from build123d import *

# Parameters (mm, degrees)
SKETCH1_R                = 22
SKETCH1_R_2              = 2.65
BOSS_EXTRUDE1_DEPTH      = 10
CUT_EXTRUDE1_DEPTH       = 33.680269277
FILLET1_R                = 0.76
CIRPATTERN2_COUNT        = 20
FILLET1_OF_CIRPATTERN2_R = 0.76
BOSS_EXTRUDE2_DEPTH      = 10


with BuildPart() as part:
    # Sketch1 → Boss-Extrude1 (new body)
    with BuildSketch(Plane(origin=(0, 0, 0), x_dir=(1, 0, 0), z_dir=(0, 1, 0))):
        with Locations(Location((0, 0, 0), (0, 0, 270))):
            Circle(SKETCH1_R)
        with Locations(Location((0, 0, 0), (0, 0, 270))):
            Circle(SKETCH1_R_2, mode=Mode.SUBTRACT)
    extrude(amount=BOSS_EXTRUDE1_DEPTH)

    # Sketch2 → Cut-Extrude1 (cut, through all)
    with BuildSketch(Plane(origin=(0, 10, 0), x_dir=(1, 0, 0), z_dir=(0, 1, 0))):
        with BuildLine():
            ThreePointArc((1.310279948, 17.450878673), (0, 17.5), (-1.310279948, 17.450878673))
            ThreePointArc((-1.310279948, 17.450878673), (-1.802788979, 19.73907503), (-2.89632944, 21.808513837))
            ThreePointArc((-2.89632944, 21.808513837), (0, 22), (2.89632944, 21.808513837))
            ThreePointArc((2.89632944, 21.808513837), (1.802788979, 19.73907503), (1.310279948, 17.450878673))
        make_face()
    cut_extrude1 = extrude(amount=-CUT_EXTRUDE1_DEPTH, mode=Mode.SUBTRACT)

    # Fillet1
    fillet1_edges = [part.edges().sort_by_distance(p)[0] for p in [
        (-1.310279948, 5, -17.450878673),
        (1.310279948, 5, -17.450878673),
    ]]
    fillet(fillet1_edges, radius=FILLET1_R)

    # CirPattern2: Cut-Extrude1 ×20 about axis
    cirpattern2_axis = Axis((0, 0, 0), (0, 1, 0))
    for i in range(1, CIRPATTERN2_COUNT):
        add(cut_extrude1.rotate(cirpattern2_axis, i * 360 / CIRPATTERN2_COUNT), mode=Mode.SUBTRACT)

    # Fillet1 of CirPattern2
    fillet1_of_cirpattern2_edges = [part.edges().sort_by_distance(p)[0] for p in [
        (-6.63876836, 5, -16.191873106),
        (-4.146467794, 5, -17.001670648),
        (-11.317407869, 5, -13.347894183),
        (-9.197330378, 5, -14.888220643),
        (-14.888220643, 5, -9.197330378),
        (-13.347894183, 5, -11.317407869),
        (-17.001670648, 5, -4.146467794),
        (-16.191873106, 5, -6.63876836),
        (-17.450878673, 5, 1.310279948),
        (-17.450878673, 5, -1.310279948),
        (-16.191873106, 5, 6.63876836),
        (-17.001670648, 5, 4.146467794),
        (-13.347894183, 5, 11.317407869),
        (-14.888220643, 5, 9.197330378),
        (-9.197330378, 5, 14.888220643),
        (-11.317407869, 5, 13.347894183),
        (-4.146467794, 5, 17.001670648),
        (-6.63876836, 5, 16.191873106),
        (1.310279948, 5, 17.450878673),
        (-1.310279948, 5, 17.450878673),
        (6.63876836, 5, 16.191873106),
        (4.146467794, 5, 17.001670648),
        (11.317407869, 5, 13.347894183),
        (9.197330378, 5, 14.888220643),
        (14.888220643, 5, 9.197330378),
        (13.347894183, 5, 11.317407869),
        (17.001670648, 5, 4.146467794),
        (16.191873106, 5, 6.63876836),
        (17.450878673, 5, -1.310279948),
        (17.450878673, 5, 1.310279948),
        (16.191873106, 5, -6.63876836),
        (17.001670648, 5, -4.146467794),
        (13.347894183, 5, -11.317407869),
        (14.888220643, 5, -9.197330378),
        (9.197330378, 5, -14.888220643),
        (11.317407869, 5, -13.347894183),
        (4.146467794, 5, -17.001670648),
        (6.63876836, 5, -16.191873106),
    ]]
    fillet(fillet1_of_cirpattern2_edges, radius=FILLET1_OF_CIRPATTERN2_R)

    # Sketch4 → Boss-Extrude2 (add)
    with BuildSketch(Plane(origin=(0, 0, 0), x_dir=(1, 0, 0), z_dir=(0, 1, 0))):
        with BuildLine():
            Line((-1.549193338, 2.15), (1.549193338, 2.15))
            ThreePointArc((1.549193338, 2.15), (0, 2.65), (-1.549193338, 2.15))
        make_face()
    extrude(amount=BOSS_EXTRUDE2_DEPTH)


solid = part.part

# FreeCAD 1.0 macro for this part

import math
import FreeCAD as App
import Part
import Sketcher
Q = App.Units.Quantity


def edges_at(feature, points):
    """Names of the edges that pass closest to the given points."""
    edges = feature.Shape.Edges
    near = lambda p: min(range(len(edges)), key=lambda i: edges[i].distToShape(Part.Vertex(*p))[0])
    return sorted({f"Edge{near(p) + 1}" for p in points})

doc = App.newDocument("Part")
body = doc.addObject("PartDesign::Body", "Body")

# Sketch on XZ plane
sketch1 = doc.addObject("Sketcher::SketchObject", "Sketch")
body.addObject(sketch1)
sketch1.AttachmentSupport = (doc.XZ_Plane, [""])
sketch1.MapMode = "FlatFace"
sketch1.addGeometry([
    Part.Circle(App.Vector(0, 0, 0), App.Vector(0, 0, 1), 22),
    Part.Circle(App.Vector(0, 0, 0), App.Vector(0, 0, 1), 2.65),
], False)
sketch1.addConstraint([
    Sketcher.Constraint("Coincident", 0, 3, -1, 1),
    Sketcher.Constraint("Coincident", 1, 3, -1, 1),
    Sketcher.Constraint("Diameter", 0, Q("44 mm")),
    Sketcher.Constraint("Diameter", 1, Q("5.3 mm")),
])
pad1 = doc.addObject("PartDesign::Pad", "Pad")
body.addObject(pad1)
pad1.Profile = sketch1
pad1.Length = 10
pad1.Reversed = True

# Sketch on XZ plane
sketch2 = doc.addObject("Sketcher::SketchObject", "Sketch001")
body.addObject(sketch2)
sketch2.AttachmentSupport = (doc.XZ_Plane, [""])
sketch2.MapMode = "FlatFace"
sketch2.AttachmentOffset = App.Placement(App.Vector(0, 0, -10), App.Rotation())
sketch2.addGeometry([
    Part.ArcOfCircle(Part.Circle(App.Vector(0, 0, 0), App.Vector(0, 0, 1), 17.5), math.radians(-94.293933), math.radians(-85.706067)),
    Part.ArcOfCircle(Part.Circle(App.Vector(9.851546, -16.809567, 0), App.Vector(0, 0, 1), 8.565308), math.radians(-175.706067), math.radians(-144.293933)),
    Part.ArcOfCircle(Part.Circle(App.Vector(0, 0, 0), App.Vector(0, 0, 1), 22), math.radians(-97.565027), math.radians(-82.434973)),
    Part.ArcOfCircle(Part.Circle(App.Vector(-9.851546, -16.809567, 0), App.Vector(0, 0, 1), 8.565308), math.radians(-35.706067), math.radians(-4.293933)),
], False)
sketch2.addConstraint([
    Sketcher.Constraint("Coincident", 0, 2, 1, 1),
    Sketcher.Constraint("Coincident", 1, 2, 2, 2),
    Sketcher.Constraint("Coincident", 2, 1, 3, 1),
    Sketcher.Constraint("Coincident", 3, 2, 0, 1),
    Sketcher.Constraint("Coincident", 0, 3, -1, 1),
    Sketcher.Constraint("Coincident", 2, 3, -1, 1),
    Sketcher.Constraint("Equal", 1, 3),
    Sketcher.Constraint("Symmetric", 1, 3, 3, 3, -2),
    Sketcher.Constraint("Radius", 2, Q("22 mm")),
    Sketcher.Constraint("Radius", 0, Q("17.5 mm")),
    Sketcher.Constraint("Radius", 1, Q("8.565308 mm")),
    Sketcher.Constraint("DistanceX", -1, 1, 0, 2, Q("1.31028 mm")),
    Sketcher.Constraint("DistanceX", -1, 1, 1, 2, Q("2.896329 mm")),
])
pocket1 = doc.addObject("PartDesign::Pocket", "Pocket")
body.addObject(pocket1)
pocket1.Profile = sketch2
pocket1.Type = "ThroughAll"
pocket1.Reversed = True
doc.recompute()

fillet = doc.addObject("PartDesign::Fillet", "Fillet")
body.addObject(fillet)
fillet.Base = (pocket1, edges_at(pocket1, [(-1.31, 5, -17.451), (1.31, 5, -17.451)]))
fillet.Radius = 0.76
doc.recompute()

polarpattern = doc.addObject("PartDesign::PolarPattern", "PolarPattern")
body.addObject(polarpattern)
polarpattern.Originals = [pocket1]
polarpattern.Axis = (doc.Y_Axis, [""])
polarpattern.Angle = 360
polarpattern.Occurrences = 20
body.Tip = polarpattern
doc.recompute()

fillet2 = doc.addObject("PartDesign::Fillet", "Fillet001")
body.addObject(fillet2)
fillet2.Base = (polarpattern, edges_at(polarpattern, [
    (-6.639, 5, -16.192),
    (-4.146, 5, -17.002),
    (-11.317, 5, -13.348),
    (-9.197, 5, -14.888),
    (-14.888, 5, -9.197),
    (-13.348, 5, -11.317),
    (-17.002, 5, -4.146),
    (-16.192, 5, -6.639),
    (-17.451, 5, 1.31),
    (-17.451, 5, -1.31),
    (-16.192, 5, 6.639),
    (-17.002, 5, 4.146),
    (-13.348, 5, 11.317),
    (-14.888, 5, 9.197),
    (-9.197, 5, 14.888),
    (-11.317, 5, 13.348),
    (-4.146, 5, 17.002),
    (-6.639, 5, 16.192),
    (1.31, 5, 17.451),
    (-1.31, 5, 17.451),
    (6.639, 5, 16.192),
    (4.146, 5, 17.002),
    (11.317, 5, 13.348),
    (9.197, 5, 14.888),
    (14.888, 5, 9.197),
    (13.348, 5, 11.317),
    (17.002, 5, 4.146),
    (16.192, 5, 6.639),
    (17.451, 5, -1.31),
    (17.451, 5, 1.31),
    (16.192, 5, -6.639),
    (17.002, 5, -4.146),
    (13.348, 5, -11.317),
    (14.888, 5, -9.197),
    (9.197, 5, -14.888),
    (11.317, 5, -13.348),
    (4.146, 5, -17.002),
    (6.639, 5, -16.192),
]))
fillet2.Radius = 0.76

# Sketch on XZ plane
sketch3 = doc.addObject("Sketcher::SketchObject", "Sketch002")
body.addObject(sketch3)
sketch3.AttachmentSupport = (doc.XZ_Plane, [""])
sketch3.MapMode = "FlatFace"
sketch3.addGeometry([
    Part.LineSegment(App.Vector(-1.549193, -2.15, 0), App.Vector(1.549193, -2.15, 0)),
    Part.ArcOfCircle(Part.Circle(App.Vector(0, 0, 0), App.Vector(0, 0, 1), 2.65), math.radians(-125.774826), math.radians(-54.225174)),
], False)
sketch3.addConstraint([
    Sketcher.Constraint("Coincident", 0, 1, 1, 1),
    Sketcher.Constraint("Coincident", 1, 2, 0, 2),
    Sketcher.Constraint("Horizontal", 0),
    Sketcher.Constraint("Coincident", 1, 3, -1, 1),
    Sketcher.Constraint("Radius", 1, Q("2.65 mm")),
    Sketcher.Constraint("DistanceY", 0, 1, -1, 1, Q("2.15 mm")),
])
pad2 = doc.addObject("PartDesign::Pad", "Pad001")
body.addObject(pad2)
pad2.Profile = sketch3
pad2.Length = 10
pad2.Reversed = True

doc.recompute()
